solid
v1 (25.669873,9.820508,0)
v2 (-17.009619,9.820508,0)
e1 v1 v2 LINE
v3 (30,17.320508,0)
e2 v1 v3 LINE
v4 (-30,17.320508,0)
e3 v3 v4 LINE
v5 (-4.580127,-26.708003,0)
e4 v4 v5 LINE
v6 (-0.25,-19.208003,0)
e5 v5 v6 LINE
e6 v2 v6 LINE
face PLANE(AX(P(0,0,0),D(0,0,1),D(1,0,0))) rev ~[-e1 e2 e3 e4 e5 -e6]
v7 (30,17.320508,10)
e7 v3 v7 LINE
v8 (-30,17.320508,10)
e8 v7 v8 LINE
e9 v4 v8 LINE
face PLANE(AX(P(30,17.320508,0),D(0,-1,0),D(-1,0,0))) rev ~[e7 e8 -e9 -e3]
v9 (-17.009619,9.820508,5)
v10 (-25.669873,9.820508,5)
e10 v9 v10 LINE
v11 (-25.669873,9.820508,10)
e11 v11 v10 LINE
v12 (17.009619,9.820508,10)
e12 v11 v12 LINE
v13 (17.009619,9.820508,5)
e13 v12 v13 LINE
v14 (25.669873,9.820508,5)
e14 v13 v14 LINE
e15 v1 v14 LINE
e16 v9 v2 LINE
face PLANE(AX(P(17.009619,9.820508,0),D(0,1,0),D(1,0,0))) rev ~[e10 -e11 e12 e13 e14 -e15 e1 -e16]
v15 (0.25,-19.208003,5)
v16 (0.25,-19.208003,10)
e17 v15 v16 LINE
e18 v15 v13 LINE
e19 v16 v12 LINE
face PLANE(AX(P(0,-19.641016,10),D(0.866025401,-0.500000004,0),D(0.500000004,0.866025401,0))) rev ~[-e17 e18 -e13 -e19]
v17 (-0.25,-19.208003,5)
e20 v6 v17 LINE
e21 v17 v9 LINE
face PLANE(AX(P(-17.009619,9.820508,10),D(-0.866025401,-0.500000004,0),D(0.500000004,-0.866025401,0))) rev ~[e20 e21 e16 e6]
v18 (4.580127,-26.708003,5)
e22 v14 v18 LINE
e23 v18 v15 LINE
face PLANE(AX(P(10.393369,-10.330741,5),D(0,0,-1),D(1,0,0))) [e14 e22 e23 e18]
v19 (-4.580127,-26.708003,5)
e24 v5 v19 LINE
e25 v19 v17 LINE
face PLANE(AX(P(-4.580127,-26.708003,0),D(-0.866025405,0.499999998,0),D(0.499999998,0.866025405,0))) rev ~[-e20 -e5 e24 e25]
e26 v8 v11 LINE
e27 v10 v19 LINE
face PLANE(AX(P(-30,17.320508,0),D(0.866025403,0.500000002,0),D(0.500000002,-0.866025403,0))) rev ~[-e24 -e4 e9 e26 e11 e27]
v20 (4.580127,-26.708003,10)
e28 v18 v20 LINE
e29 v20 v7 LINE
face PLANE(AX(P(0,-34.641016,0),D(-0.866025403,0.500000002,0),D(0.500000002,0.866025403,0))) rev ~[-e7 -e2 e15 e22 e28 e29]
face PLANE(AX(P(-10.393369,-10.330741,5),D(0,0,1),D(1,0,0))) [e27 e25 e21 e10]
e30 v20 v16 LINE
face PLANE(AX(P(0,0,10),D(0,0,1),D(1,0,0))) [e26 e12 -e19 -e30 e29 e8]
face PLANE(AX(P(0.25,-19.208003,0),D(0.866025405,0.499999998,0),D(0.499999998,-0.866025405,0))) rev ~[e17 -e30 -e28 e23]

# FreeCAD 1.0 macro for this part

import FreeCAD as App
import Part
import Sketcher

V = App.Vector
Q = App.Units.Quantity

doc = App.newDocument("Part")
body = doc.addObject("PartDesign::Body", "Body")

sketch1 = body.newObject("Sketcher::SketchObject", "Sketch")
sketch1.AttachmentSupport = (doc.getObject("XY_Plane"), [""])
sketch1.MapMode = "FlatFace"
sketch1.addGeometry([
    Part.LineSegment(V(30, 17, 0), V(-30, 17, 0)),
    Part.LineSegment(V(-30, 17, 0), V(0, -35, 0)),
    Part.LineSegment(V(0, -35, 0), V(30, 17, 0)),
], False)
sketch1.addConstraint([
    Sketcher.Constraint("Coincident", 0, 2, 1, 1),
    Sketcher.Constraint("Coincident", 1, 2, 2, 1),
    Sketcher.Constraint("Coincident", 2, 2, 0, 1),
    Sketcher.Constraint("Horizontal", 0),
    Sketcher.Constraint("PointOnObject", 1, 2, -2),
    Sketcher.Constraint("Equal", 1, 2),
    Sketcher.Constraint("DistanceX", 0, 2, 0, 1, Q("60 mm")),
    Sketcher.Constraint("Angle", 1, Q("-60 deg")),
    Sketcher.Constraint("DistanceY", -1, 1, 0, 2, Q("17.320508 mm")),
])
pad1 = body.newObject("PartDesign::Pad", "Pad")
pad1.Profile = sketch1
pad1.Length = 10

sketch2 = body.newObject("Sketcher::SketchObject", "Sketch001")
sketch2.AttachmentSupport = (doc.getObject("XY_Plane"), [""])
sketch2.MapMode = "FlatFace"
sketch2.AttachmentOffset = App.Placement(V(0, 0, 10), App.Rotation())
sketch2.addGeometry([
    Part.LineSegment(V(17, 10, 0), V(-17, 10, 0)),
    Part.LineSegment(V(-17, 10, 0), V(0, -20, 0)),
    Part.LineSegment(V(0, -20, 0), V(17, 10, 0)),
], False)
sketch2.addConstraint([
    Sketcher.Constraint("Coincident", 0, 2, 1, 1),
    Sketcher.Constraint("Coincident", 1, 2, 2, 1),
    Sketcher.Constraint("Coincident", 2, 2, 0, 1),
    Sketcher.Constraint("Horizontal", 0),
    Sketcher.Constraint("PointOnObject", 1, 2, -2),
    Sketcher.Constraint("Equal", 1, 2),
    Sketcher.Constraint("Angle", 1, Q("-60 deg")),
    Sketcher.Constraint("DistanceX", 0, 2, 0, 1, Q("34.019238 mm")),
    Sketcher.Constraint("DistanceY", -1, 1, 0, 2, Q("9.820508 mm")),
])
pocket1 = body.newObject("PartDesign::Pocket", "Pocket")
pocket1.Profile = sketch2
pocket1.Type = "ThroughAll"

sketch3 = body.newObject("Sketcher::SketchObject", "Sketch002")
sketch3.AttachmentSupport = (doc.getObject("XY_Plane"), [""])
sketch3.MapMode = "FlatFace"
sketch3.addGeometry([
    Part.LineSegment(V(4.3, -27.1, 0), V(0, -34.6, 0)),
    Part.LineSegment(V(0, -34.6, 0), V(-4.3, -27.1, 0)),
    Part.LineSegment(V(-4.3, -27.1, 0), V(-4.6, -26.7, 0)),
    Part.LineSegment(V(-4.6, -26.7, 0), V(-0.2, -19.2, 0)),
    Part.LineSegment(V(-0.2, -19.2, 0), V(0.2, -19.2, 0)),
    Part.LineSegment(V(0.2, -19.2, 0), V(4.6, -26.7, 0)),
    Part.LineSegment(V(4.6, -26.7, 0), V(4.3, -27.1, 0)),
], False)
sketch3.addConstraint([
    Sketcher.Constraint("Coincident", 0, 2, 1, 1),
    Sketcher.Constraint("Coincident", 1, 2, 2, 1),
    Sketcher.Constraint("Coincident", 2, 2, 3, 1),
    Sketcher.Constraint("Coincident", 3, 2, 4, 1),
    Sketcher.Constraint("Coincident", 4, 2, 5, 1),
    Sketcher.Constraint("Coincident", 5, 2, 6, 1),
    Sketcher.Constraint("Coincident", 6, 2, 0, 1),
    Sketcher.Constraint("Horizontal", 4),
    Sketcher.Constraint("Symmetric", 2, 2, 5, 2, -2),
    Sketcher.Constraint("Symmetric", 1, 2, 6, 2, -2),
    Sketcher.Constraint("PointOnObject", 0, 2, -2),
    Sketcher.Constraint("Parallel", 1, 2),
    Sketcher.Constraint("Parallel", 0, 3),
    Sketcher.Constraint("Parallel", 2, 5),
    Sketcher.Constraint("Equal", 1, 3),
    Sketcher.Constraint("Angle", 0, Q("-120 deg")),
    Sketcher.Constraint("DistanceX", 4, 1, 4, 2, Q("0.5 mm")),
    Sketcher.Constraint("DistanceY", 0, 2, 1, 2, Q("7.5 mm")),
    Sketcher.Constraint("DistanceY", 0, 2, -1, 1, Q("34.641016 mm")),
])
pocket2 = body.newObject("PartDesign::Pocket", "Pocket001")
pocket2.Profile = sketch3
pocket2.Type = "ThroughAll"
pocket2.Reversed = True

sketch4 = body.newObject("Sketcher::SketchObject", "Sketch003")
sketch4.AttachmentSupport = (doc.getObject("XY_Plane"), [""])
sketch4.MapMode = "FlatFace"
sketch4.addGeometry([
    Part.LineSegment(V(4.3, -27.1, 0), V(0, -34.6, 0)),
    Part.LineSegment(V(0, -34.6, 0), V(-4.3, -27.1, 0)),
    Part.LineSegment(V(-4.3, -27.1, 0), V(-4.6, -26.7, 0)),
    Part.LineSegment(V(-4.6, -26.7, 0), V(-0.2, -19.2, 0)),
    Part.LineSegment(V(-0.2, -19.2, 0), V(0.2, -19.2, 0)),
    Part.LineSegment(V(0.2, -19.2, 0), V(4.6, -26.7, 0)),
    Part.LineSegment(V(4.6, -26.7, 0), V(4.3, -27.1, 0)),
], False)
sketch4.addConstraint([
    Sketcher.Constraint("Coincident", 0, 2, 1, 1),
    Sketcher.Constraint("Coincident", 1, 2, 2, 1),
    Sketcher.Constraint("Coincident", 2, 2, 3, 1),
    Sketcher.Constraint("Coincident", 3, 2, 4, 1),
    Sketcher.Constraint("Coincident", 4, 2, 5, 1),
    Sketcher.Constraint("Coincident", 5, 2, 6, 1),
    Sketcher.Constraint("Coincident", 6, 2, 0, 1),
    Sketcher.Constraint("Horizontal", 4),
    Sketcher.Constraint("Symmetric", 2, 2, 5, 2, -2),
    Sketcher.Constraint("Symmetric", 1, 2, 6, 2, -2),
    Sketcher.Constraint("PointOnObject", 0, 2, -2),
    Sketcher.Constraint("Parallel", 1, 2),
    Sketcher.Constraint("Parallel", 0, 3),
    Sketcher.Constraint("Parallel", 2, 5),
    Sketcher.Constraint("Equal", 1, 3),
    Sketcher.Constraint("Angle", 0, Q("-120 deg")),
    Sketcher.Constraint("DistanceX", 4, 1, 4, 2, Q("0.5 mm")),
    Sketcher.Constraint("DistanceY", 0, 2, 1, 2, Q("7.5 mm")),
    Sketcher.Constraint("DistanceY", 0, 2, -1, 1, Q("34.641016 mm")),
])
pocket3 = body.newObject("PartDesign::Pocket", "Pocket002")
pocket3.Profile = sketch4
pocket3.Type = "ThroughAll"
pocket3.Reversed = True

sketch5 = body.newObject("Sketcher::SketchObject", "Sketch004")
sketch5.AttachmentSupport = (doc.getObject("XY_Plane"), [""])
sketch5.MapMode = "FlatFace"
sketch5.AttachmentOffset = App.Placement(V(0, 0, 10), App.Rotation())
sketch5.addGeometry([
    Part.LineSegment(V(0, -35, 0), V(0, -20, 0)),
    Part.LineSegment(V(0, -20, 0), V(-17, 10, 0)),
    Part.LineSegment(V(-17, 10, 0), V(-26, 10, 0)),
    Part.LineSegment(V(-26, 10, 0), V(0, -35, 0)),
], False)
sketch5.addConstraint([
    Sketcher.Constraint("Coincident", 0, 2, 1, 1),
    Sketcher.Constraint("Coincident", 1, 2, 2, 1),
    Sketcher.Constraint("Coincident", 2, 2, 3, 1),
    Sketcher.Constraint("Coincident", 3, 2, 0, 1),
    Sketcher.Constraint("Vertical", 0),
    Sketcher.Constraint("Horizontal", 2),
    Sketcher.Constraint("PointOnObject", 0, 2, -2),
    Sketcher.Constraint("Parallel", 1, 3),
    Sketcher.Constraint("DistanceY", 0, 1, 0, 2, Q("15 mm")),
    Sketcher.Constraint("Angle", 1, Q("120 deg")),
    Sketcher.Constraint("DistanceX", 1, 2, -1, 1, Q("17.009619 mm")),
    Sketcher.Constraint("DistanceY", 0, 2, -1, 1, Q("19.641016 mm")),
])
pocket4 = body.newObject("PartDesign::Pocket", "Pocket003")
pocket4.Profile = sketch5
pocket4.Length = 5

sketch6 = body.newObject("Sketcher::SketchObject", "Sketch005")
sketch6.AttachmentSupport = (doc.getObject("XY_Plane"), [""])
sketch6.MapMode = "FlatFace"
sketch6.addGeometry([
    Part.LineSegment(V(0, -35, 0), V(0, -20, 0)),
    Part.LineSegment(V(0, -20, 0), V(17, 10, 0)),
    Part.LineSegment(V(17, 10, 0), V(26, 10, 0)),
    Part.LineSegment(V(26, 10, 0), V(0, -35, 0)),
], False)
sketch6.addConstraint([
    Sketcher.Constraint("Coincident", 0, 2, 1, 1),
    Sketcher.Constraint("Coincident", 1, 2, 2, 1),
    Sketcher.Constraint("Coincident", 2, 2, 3, 1),
    Sketcher.Constraint("Coincident", 3, 2, 0, 1),
    Sketcher.Constraint("Vertical", 0),
    Sketcher.Constraint("Horizontal", 2),
    Sketcher.Constraint("PointOnObject", 0, 2, -2),
    Sketcher.Constraint("Parallel", 1, 3),
    Sketcher.Constraint("DistanceY", 0, 1, 0, 2, Q("15 mm")),
    Sketcher.Constraint("Angle", 1, Q("60 deg")),
    Sketcher.Constraint("DistanceX", -1, 1, 1, 2, Q("17.009619 mm")),
    Sketcher.Constraint("DistanceY", 0, 2, -1, 1, Q("19.641016 mm")),
])
pocket5 = body.newObject("PartDesign::Pocket", "Pocket004")
pocket5.Profile = sketch6
pocket5.Length = 5
pocket5.Reversed = True

doc.recompute()
